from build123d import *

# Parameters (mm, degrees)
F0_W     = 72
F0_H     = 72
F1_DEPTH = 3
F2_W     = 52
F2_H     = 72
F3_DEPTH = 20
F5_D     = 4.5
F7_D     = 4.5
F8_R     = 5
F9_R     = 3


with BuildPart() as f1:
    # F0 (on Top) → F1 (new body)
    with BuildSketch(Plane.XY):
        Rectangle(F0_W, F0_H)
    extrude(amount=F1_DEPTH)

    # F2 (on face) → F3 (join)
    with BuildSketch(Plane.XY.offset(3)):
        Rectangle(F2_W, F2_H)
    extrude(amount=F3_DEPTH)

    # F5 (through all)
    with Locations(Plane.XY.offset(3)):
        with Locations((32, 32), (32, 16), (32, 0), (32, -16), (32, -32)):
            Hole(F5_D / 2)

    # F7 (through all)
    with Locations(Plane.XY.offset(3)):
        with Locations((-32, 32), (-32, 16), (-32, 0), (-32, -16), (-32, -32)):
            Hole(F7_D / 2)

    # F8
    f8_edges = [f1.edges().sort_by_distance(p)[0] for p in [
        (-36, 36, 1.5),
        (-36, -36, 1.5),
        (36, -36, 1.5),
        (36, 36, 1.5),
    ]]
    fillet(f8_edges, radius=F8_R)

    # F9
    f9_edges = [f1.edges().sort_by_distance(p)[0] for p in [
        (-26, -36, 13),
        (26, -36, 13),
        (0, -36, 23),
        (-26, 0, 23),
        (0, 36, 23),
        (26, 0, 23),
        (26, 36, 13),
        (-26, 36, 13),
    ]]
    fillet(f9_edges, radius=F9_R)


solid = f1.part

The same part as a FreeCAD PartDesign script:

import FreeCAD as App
import Part
import Sketcher
from FreeCAD import Vector
Q = App.Units.Quantity


def edges_at(feature, points):
    """Names of the edges that pass closest to the given points."""
    edges = feature.Shape.Edges
    near = lambda p: min(range(len(edges)), key=lambda i: edges[i].distToShape(Part.Vertex(*p))[0])
    return sorted({f"Edge{near(p) + 1}" for p in points})

doc = App.newDocument("Part")
params = doc.addObject("Spreadsheet::Sheet", "Params")
for row, (alias, value) in enumerate([
    ("sketch1_width", "72 mm"),
    ("pad1_length", "3 mm"),
    ("sketch2_width", "52 mm"),
    ("sketch2_height", "72 mm"),
    ("pad2_length", "20 mm"),
    ("sketch3_diameter", "4.5 mm"),
    ("hole_diameter", "4.5 mm"),
    ("sketch4_diameter", "4.5 mm"),
    ("hole2_diameter", "4.5 mm"),
    ("fillet_radius", "5 mm"),
    ("fillet2_radius", "3 mm"),
], start=1):
    params.set(f"A{row}", alias)
    params.set(f"B{row}", "=" + value)
    params.setAlias(f"B{row}", alias)

body = doc.addObject("PartDesign::Body", "Body")

# Sketch on XY plane
sketch1 = body.newObject("Sketcher::SketchObject", "Sketch")
sketch1.AttachmentSupport = (doc.getObject("XY_Plane"), [""])
sketch1.MapMode = "FlatFace"
sketch1.addGeometry([
    Part.LineSegment(Vector(-36, 36, 0), Vector(-36, -36, 0)),
    Part.LineSegment(Vector(-36, -36, 0), Vector(36, -36, 0)),
    Part.LineSegment(Vector(36, -36, 0), Vector(36, 36, 0)),
    Part.LineSegment(Vector(36, 36, 0), Vector(-36, 36, 0)),
], False)
sketch1.addConstraint([
    Sketcher.Constraint("Coincident", 0, 2, 1, 1),
    Sketcher.Constraint("Coincident", 1, 2, 2, 1),
    Sketcher.Constraint("Coincident", 2, 2, 3, 1),
    Sketcher.Constraint("Coincident", 3, 2, 0, 1),
    Sketcher.Constraint("Vertical", 0),
    Sketcher.Constraint("Horizontal", 1),
    Sketcher.Constraint("Vertical", 2),
    Sketcher.Constraint("Horizontal", 3),
    Sketcher.Constraint("Symmetric", 0, 2, 2, 2, -1, 1),
    Sketcher.Constraint("Equal", 3, 0),
    Sketcher.Constraint("DistanceX", 1, 1, 1, 2, Q("72 mm")),
])
sketch1.setExpression("Constraints[10]", "Params.sketch1_width")
pad1 = body.newObject("PartDesign::Pad", "Pad")
pad1.Profile = sketch1
pad1.setExpression("Length", "Params.pad1_length")

# Sketch on XY plane
sketch2 = body.newObject("Sketcher::SketchObject", "Sketch001")
sketch2.AttachmentSupport = (doc.getObject("XY_Plane"), [""])
sketch2.MapMode = "FlatFace"
sketch2.AttachmentOffset = App.Placement(Vector(0, 0, 3), App.Rotation())
sketch2.addGeometry([
    Part.LineSegment(Vector(-26, 36, 0), Vector(-26, -36, 0)),
    Part.LineSegment(Vector(-26, -36, 0), Vector(26, -36, 0)),
    Part.LineSegment(Vector(26, -36, 0), Vector(26, 36, 0)),
    Part.LineSegment(Vector(26, 36, 0), Vector(-26, 36, 0)),
], False)
sketch2.addConstraint([
    Sketcher.Constraint("Coincident", 0, 2, 1, 1),
    Sketcher.Constraint("Coincident", 1, 2, 2, 1),
    Sketcher.Constraint("Coincident", 2, 2, 3, 1),
    Sketcher.Constraint("Coincident", 3, 2, 0, 1),
    Sketcher.Constraint("Vertical", 0),
    Sketcher.Constraint("Horizontal", 1),
    Sketcher.Constraint("Vertical", 2),
    Sketcher.Constraint("Horizontal", 3),
    Sketcher.Constraint("Symmetric", 0, 2, 2, 2, -1, 1),
    Sketcher.Constraint("DistanceX", 1, 1, 1, 2, Q("52 mm")),
    Sketcher.Constraint("DistanceY", 0, 2, 0, 1, Q("72 mm")),
])
sketch2.setExpression("Constraints[9]", "Params.sketch2_width")
sketch2.setExpression("Constraints[10]", "Params.sketch2_height")
pad2 = body.newObject("PartDesign::Pad", "Pad001")
pad2.Profile = sketch2
pad2.setExpression("Length", "Params.pad2_length")

# Sketch on XY plane
sketch3 = body.newObject("Sketcher::SketchObject", "Sketch002")
sketch3.AttachmentSupport = (doc.getObject("XY_Plane"), [""])
sketch3.MapMode = "FlatFace"
sketch3.AttachmentOffset = App.Placement(Vector(0, 0, 3), App.Rotation())
sketch3.addGeometry([
    Part.Circle(Vector(32, 32, 0), Vector(0, 0, 1), 2.2),  # 0
    Part.Circle(Vector(32, 16, 0), Vector(0, 0, 1), 2.2),  # 1
    Part.Circle(Vector(32, 0, 0), Vector(0, 0, 1), 2.2),  # 2
    Part.Circle(Vector(32, -16, 0), Vector(0, 0, 1), 2.2),  # 3
    Part.Circle(Vector(32, -32, 0), Vector(0, 0, 1), 2.2),  # 4
], False)
sketch3.addConstraint([
    Sketcher.Constraint("Equal", 0, 1),
    Sketcher.Constraint("Equal", 1, 2),
    Sketcher.Constraint("Equal", 2, 3),
    Sketcher.Constraint("Equal", 3, 4),
    Sketcher.Constraint("Symmetric", 1, 3, 3, 3, -1),
    Sketcher.Constraint("Symmetric", 0, 3, 4, 3, -1),
    Sketcher.Constraint("PointOnObject", 2, 3, -1),
    Sketcher.Constraint("Vertical", 0, 3, 1, 3),
    Sketcher.Constraint("Vertical", 1, 3, 2, 3),
    Sketcher.Constraint("Diameter", 0, Q("4.5 mm")),
    Sketcher.Constraint("DistanceX", -1, 1, 0, 3, Q("32 mm")),
    Sketcher.Constraint("DistanceY", -1, 1, 0, 3, Q("32 mm")),
    Sketcher.Constraint("DistanceY", -1, 1, 1, 3, Q("16 mm")),
])
sketch3.setExpression("Constraints[9]", "Params.sketch3_diameter")
doc.recompute()
hole = body.newObject("PartDesign::Hole", "Hole")
hole.Profile = sketch3
hole.ThreadType = "None"
hole.setExpression("Diameter", "Params.hole_diameter")
hole.DepthType = "ThroughAll"

# Sketch on XY plane
sketch4 = body.newObject("Sketcher::SketchObject", "Sketch003")
sketch4.AttachmentSupport = (doc.getObject("XY_Plane"), [""])
sketch4.MapMode = "FlatFace"
sketch4.AttachmentOffset = App.Placement(Vector(0, 0, 3), App.Rotation())
sketch4.addGeometry([
    Part.Circle(Vector(-32, 32, 0), Vector(0, 0, 1), 2.2),  # 0
    Part.Circle(Vector(-32, 16, 0), Vector(0, 0, 1), 2.2),  # 1
    Part.Circle(Vector(-32, 0, 0), Vector(0, 0, 1), 2.2),  # 2
    Part.Circle(Vector(-32, -16, 0), Vector(0, 0, 1), 2.2),  # 3
    Part.Circle(Vector(-32, -32, 0), Vector(0, 0, 1), 2.2),  # 4
], False)
sketch4.addConstraint([
    Sketcher.Constraint("Equal", 0, 1),
    Sketcher.Constraint("Equal", 1, 2),
    Sketcher.Constraint("Equal", 2, 3),
    Sketcher.Constraint("Equal", 3, 4),
    Sketcher.Constraint("Symmetric", 1, 3, 3, 3, -1),
    Sketcher.Constraint("Symmetric", 0, 3, 4, 3, -1),
    Sketcher.Constraint("PointOnObject", 2, 3, -1),
    Sketcher.Constraint("Vertical", 0, 3, 1, 3),
    Sketcher.Constraint("Vertical", 1, 3, 2, 3),
    Sketcher.Constraint("Diameter", 0, Q("4.5 mm")),
    Sketcher.Constraint("DistanceX", 0, 3, -1, 1, Q("32 mm")),
    Sketcher.Constraint("DistanceY", -1, 1, 0, 3, Q("32 mm")),
    Sketcher.Constraint("DistanceY", -1, 1, 1, 3, Q("16 mm")),
])
sketch4.setExpression("Constraints[9]", "Params.sketch4_diameter")
doc.recompute()
hole2 = body.newObject("PartDesign::Hole", "Hole001")
hole2.Profile = sketch4
hole2.ThreadType = "None"
hole2.setExpression("Diameter", "Params.hole2_diameter")
hole2.DepthType = "ThroughAll"
doc.recompute()

fillet = body.newObject("PartDesign::Fillet", "Fillet")
fillet.Base = (hole2, edges_at(hole2, [
    (-36, 36, 1.5),
    (-36, -36, 1.5),
    (36, -36, 1.5),
    (36, 36, 1.5),
]))
fillet.setExpression("Radius", "Params.fillet_radius")
doc.recompute()

fillet2 = body.newObject("PartDesign::Fillet", "Fillet001")
fillet2.Base = (fillet, edges_at(fillet, [
    (-26, -36, 13),
    (26, -36, 13),
    (0, -36, 23),
    (-26, 0, 23),
    (0, 36, 23),
    (26, 0, 23),
    (26, 36, 13),
    (-26, 36, 13),
]))
fillet2.setExpression("Radius", "Params.fillet2_radius")

doc.recompute()
